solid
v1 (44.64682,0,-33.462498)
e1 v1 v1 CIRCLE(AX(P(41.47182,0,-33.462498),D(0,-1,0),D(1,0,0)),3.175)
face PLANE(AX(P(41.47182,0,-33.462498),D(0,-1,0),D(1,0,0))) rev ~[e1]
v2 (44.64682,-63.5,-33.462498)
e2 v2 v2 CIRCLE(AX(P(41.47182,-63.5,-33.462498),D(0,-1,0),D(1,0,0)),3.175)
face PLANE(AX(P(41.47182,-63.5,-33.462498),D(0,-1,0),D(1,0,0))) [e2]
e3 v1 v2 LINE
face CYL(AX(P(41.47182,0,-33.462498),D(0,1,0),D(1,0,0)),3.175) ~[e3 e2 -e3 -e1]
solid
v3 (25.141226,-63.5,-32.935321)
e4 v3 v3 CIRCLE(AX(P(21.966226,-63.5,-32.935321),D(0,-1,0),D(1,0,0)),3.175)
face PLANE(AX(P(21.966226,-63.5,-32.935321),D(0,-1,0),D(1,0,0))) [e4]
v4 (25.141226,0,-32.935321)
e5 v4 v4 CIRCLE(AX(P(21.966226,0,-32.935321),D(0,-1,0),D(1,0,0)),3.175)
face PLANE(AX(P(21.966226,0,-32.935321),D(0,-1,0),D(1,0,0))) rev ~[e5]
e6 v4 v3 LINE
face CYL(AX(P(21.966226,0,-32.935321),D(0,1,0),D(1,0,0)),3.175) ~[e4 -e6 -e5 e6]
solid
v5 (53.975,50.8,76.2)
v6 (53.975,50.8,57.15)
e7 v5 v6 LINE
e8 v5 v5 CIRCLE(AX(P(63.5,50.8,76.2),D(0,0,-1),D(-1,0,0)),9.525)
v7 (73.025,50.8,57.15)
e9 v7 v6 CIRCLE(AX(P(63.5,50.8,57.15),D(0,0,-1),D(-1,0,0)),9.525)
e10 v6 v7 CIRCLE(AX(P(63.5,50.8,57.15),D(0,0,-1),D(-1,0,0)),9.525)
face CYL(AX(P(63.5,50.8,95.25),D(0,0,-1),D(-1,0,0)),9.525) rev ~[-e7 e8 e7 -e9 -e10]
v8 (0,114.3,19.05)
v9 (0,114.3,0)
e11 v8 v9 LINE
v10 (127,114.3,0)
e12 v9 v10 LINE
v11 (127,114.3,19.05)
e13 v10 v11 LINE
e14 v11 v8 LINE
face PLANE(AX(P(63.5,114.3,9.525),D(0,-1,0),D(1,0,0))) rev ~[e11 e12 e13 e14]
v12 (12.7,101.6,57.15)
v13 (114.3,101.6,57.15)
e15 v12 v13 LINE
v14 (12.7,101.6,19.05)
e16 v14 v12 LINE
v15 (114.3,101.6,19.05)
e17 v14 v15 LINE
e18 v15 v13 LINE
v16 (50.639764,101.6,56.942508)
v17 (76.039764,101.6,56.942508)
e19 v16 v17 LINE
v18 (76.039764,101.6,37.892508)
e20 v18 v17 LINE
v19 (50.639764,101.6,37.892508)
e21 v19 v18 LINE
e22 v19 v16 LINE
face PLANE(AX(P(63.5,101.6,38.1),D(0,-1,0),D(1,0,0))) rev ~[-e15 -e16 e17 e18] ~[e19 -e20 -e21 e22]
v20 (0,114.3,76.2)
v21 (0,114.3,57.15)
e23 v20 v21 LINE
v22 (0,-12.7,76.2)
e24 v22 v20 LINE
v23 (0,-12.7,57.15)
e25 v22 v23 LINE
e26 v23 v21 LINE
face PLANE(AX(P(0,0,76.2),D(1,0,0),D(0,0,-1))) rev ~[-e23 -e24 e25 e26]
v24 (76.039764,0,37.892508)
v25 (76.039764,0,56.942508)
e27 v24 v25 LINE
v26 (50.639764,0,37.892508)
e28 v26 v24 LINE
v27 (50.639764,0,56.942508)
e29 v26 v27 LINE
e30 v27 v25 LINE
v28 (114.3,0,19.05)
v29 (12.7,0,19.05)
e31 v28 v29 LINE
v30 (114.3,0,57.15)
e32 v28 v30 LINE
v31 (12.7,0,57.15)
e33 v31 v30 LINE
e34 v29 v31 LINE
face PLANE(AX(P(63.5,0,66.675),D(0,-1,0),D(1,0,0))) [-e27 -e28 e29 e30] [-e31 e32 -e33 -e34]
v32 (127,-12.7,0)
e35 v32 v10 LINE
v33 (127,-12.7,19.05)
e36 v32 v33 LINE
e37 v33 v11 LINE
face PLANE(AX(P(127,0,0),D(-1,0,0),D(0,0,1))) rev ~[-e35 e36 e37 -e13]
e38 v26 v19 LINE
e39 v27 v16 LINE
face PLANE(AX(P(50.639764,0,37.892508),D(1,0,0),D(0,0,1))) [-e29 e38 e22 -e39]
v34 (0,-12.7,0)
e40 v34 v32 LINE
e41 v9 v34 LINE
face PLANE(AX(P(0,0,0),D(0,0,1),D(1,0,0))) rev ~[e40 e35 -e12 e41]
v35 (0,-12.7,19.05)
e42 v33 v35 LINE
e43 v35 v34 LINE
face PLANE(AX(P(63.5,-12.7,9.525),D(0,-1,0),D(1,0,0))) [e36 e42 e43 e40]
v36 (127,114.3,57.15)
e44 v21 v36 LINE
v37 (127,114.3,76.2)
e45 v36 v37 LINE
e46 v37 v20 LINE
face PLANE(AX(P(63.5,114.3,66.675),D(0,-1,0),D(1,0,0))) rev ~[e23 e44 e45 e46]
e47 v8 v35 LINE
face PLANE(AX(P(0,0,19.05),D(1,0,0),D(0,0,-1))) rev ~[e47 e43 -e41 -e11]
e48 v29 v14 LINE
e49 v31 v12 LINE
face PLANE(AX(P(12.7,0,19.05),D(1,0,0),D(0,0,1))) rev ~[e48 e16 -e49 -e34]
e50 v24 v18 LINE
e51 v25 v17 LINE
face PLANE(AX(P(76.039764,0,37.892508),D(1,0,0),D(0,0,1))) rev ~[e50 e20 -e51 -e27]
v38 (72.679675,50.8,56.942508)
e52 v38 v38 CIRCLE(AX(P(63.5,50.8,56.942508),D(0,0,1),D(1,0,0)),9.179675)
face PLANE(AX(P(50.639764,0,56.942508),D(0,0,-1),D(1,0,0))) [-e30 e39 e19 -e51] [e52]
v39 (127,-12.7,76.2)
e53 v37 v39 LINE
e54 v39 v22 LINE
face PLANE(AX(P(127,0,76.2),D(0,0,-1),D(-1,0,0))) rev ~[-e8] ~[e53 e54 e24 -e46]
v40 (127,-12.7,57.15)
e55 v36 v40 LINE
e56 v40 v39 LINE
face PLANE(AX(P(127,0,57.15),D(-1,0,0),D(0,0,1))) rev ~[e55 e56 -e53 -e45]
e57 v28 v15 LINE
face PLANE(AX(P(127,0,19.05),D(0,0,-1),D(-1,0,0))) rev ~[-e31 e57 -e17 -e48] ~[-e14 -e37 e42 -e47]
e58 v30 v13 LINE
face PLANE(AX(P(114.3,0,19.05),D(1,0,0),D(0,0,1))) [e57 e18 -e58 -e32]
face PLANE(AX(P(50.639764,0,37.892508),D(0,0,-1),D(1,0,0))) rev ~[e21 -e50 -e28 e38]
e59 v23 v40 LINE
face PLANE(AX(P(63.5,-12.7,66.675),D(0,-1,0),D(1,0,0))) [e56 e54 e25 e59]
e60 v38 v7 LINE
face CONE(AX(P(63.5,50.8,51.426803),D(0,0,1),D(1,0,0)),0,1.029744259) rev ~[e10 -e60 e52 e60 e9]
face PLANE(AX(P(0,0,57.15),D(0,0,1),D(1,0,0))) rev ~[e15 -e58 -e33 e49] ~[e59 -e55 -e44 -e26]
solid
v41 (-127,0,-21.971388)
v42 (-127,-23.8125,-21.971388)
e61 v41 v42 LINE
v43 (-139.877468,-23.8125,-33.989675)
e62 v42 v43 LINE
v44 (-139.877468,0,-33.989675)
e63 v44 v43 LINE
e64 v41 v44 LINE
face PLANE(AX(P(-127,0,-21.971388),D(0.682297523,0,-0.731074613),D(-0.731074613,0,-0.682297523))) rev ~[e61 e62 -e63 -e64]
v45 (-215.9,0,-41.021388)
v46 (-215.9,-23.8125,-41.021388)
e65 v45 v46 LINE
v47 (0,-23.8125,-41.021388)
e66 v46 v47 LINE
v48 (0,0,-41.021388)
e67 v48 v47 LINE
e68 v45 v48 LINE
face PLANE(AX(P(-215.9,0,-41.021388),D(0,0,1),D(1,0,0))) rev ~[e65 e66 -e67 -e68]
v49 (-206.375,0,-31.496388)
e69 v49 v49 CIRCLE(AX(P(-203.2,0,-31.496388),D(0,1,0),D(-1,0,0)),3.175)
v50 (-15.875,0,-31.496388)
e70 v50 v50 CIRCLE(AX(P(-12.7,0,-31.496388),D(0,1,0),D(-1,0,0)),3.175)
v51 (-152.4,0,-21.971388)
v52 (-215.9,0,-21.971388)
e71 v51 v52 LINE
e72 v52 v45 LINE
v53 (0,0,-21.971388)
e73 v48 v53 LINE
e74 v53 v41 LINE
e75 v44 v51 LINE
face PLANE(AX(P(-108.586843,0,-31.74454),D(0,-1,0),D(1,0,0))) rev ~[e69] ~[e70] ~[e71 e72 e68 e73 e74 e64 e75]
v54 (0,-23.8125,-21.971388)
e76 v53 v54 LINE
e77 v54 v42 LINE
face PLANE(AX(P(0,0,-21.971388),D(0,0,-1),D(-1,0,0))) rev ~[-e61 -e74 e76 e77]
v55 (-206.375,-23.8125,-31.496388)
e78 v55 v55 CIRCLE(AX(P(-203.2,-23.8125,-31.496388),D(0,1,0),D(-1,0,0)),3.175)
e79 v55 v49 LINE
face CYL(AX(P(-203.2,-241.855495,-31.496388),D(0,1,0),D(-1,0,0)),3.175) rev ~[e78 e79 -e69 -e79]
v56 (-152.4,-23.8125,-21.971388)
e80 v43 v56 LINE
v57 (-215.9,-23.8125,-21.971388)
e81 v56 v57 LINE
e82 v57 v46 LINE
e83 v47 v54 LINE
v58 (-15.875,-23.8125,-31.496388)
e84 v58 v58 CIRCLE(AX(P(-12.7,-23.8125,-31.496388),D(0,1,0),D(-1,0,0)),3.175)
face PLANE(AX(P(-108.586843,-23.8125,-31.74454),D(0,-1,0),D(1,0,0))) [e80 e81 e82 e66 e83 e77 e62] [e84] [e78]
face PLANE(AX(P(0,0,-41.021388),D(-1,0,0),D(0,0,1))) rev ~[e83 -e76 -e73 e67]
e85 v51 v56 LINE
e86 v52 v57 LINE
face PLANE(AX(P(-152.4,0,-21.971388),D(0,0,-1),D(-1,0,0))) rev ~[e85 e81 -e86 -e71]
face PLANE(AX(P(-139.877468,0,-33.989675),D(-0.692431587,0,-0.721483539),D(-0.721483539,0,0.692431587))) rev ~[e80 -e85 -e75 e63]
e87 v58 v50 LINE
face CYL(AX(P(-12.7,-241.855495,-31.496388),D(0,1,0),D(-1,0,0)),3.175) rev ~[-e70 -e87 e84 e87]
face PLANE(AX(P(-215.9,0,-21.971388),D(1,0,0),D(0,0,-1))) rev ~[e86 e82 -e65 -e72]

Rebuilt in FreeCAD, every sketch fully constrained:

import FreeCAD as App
import Part
import Sketcher
Q = App.Units.Quantity


def add_polygon(sketch, points):
    """Adds a closed chain of lines whose ends are joined by coincident constraints."""
    first, n = sketch.GeometryCount, len(points)
    for a, b in zip(points, points[1:] + points[:1]):
        sketch.addGeometry(Part.LineSegment(App.Vector(*a, 0), App.Vector(*b, 0)), False)
    for i in range(n):
        sketch.addConstraint(Sketcher.Constraint("Coincident", first + i, 2, first + (i + 1) % n, 1))

doc = App.newDocument("Part")
params = doc.addObject("Spreadsheet::Sheet", "Params")
for row, (alias, value) in enumerate([
    ("sketch1_width", "4 in"),
    ("sketch1_height", "1.5 in"),
    ("pad1_length", "4 in"),
    ("sketch2_width", "5 in"),
    ("sketch2_height", "0.75 in"),
    ("pad2_length", "4.5 in"),
    ("pad2_length2", "0.5 in"),
    ("sketch3_width", "1 in"),
    ("sketch3_height", "0.75 in"),
    ("pocket1_length", "5 in"),
    ("sketch4_diameter", "0.75 in"),
    ("hole_diameter", "0.75 in"),
    ("hole_depth", "0.75 in"),
    ("sketch5_width", "5 in"),
    ("sketch5_width2", "2.5 in"),
    ("sketch5_width3", "8.5 in"),
    ("sketch5_height", "0.75 in"),
    ("pad3_length", "0.9375 in"),
    ("sketch6_diameter", "0.25 in"),
    ("hole2_diameter", "0.25 in"),
    ("sketch7_diameter", "0.25 in"),
    ("pad4_length", "2.5 in"),
    ("sketch8_diameter", "0.25 in"),
    ("pad5_length", "2.5 in"),
], start=1):
    params.set(f"A{row}", alias)
    params.set(f"B{row}", "=" + value)
    params.setAlias(f"B{row}", alias)

body = doc.addObject("PartDesign::Body", "Body")

sketch1 = doc.addObject("Sketcher::SketchObject", "Sketch")
body.addObject(sketch1)
sketch1.AttachmentSupport = (doc.XZ_Plane, [""])
sketch1.MapMode = "FlatFace"
add_polygon(sketch1, [(13, 57), (13, 19), (114, 19), (114, 57)])
sketch1.addConstraint([
    Sketcher.Constraint("Vertical", 0),
    Sketcher.Constraint("Horizontal", 1),
    Sketcher.Constraint("Vertical", 2),
    Sketcher.Constraint("Horizontal", 3),
    Sketcher.Constraint("DistanceX", 1, 1, 1, 2, Q("4 in")),
    Sketcher.Constraint("DistanceY", 0, 2, 0, 1, Q("1.5 in")),
    Sketcher.Constraint("DistanceX", -1, 1, 0, 2, Q("0.5 in")),
    Sketcher.Constraint("DistanceY", -1, 1, 0, 2, Q("0.75 in")),
])
sketch1.setExpression("Constraints[8]", "Params.sketch1_width")
sketch1.setExpression("Constraints[9]", "Params.sketch1_height")
pad1 = doc.addObject("PartDesign::Pad", "Pad")
body.addObject(pad1)
pad1.Profile = sketch1
pad1.setExpression("Length", "Params.pad1_length")
pad1.Reversed = True

sketch2 = doc.addObject("Sketcher::SketchObject", "Sketch001")
body.addObject(sketch2)
sketch2.AttachmentSupport = (doc.XZ_Plane, [""])
sketch2.MapMode = "FlatFace"
add_polygon(sketch2, [(0, 57), (127, 57), (127, 76), (0, 76)])
add_polygon(sketch2, [(0, 19), (0, 0), (127, 0), (127, 19)])
sketch2.addConstraint([
    Sketcher.Constraint("Horizontal", 0),
    Sketcher.Constraint("Vertical", 1),
    Sketcher.Constraint("Horizontal", 2),
    Sketcher.Constraint("Vertical", 3),
    Sketcher.Constraint("Vertical", 4),
    Sketcher.Constraint("Horizontal", 5),
    Sketcher.Constraint("Vertical", 6),
    Sketcher.Constraint("Horizontal", 7),
    Sketcher.Constraint("Coincident", 4, 2, -1, 1),
    Sketcher.Constraint("PointOnObject", 2, 2, -2),
    Sketcher.Constraint("Vertical", 1, 2, 5, 2),
    Sketcher.Constraint("Equal", 3, 4),
    Sketcher.Constraint("DistanceX", 0, 1, 0, 2, Q("5 in")),
    Sketcher.Constraint("DistanceY", -1, 1, 1, 2, Q("3 in")),
    Sketcher.Constraint("DistanceY", 1, 1, 1, 2, Q("0.75 in")),
])
sketch2.setExpression("Constraints[20]", "Params.sketch2_width")
sketch2.setExpression("Constraints[22]", "Params.sketch2_height")
pad2 = doc.addObject("PartDesign::Pad", "Pad001")
body.addObject(pad2)
pad2.Profile = sketch2
pad2.Type = "TwoLengths"
pad2.setExpression("Length", "Params.pad2_length")
pad2.setExpression("Length2", "Params.pad2_length2")
pad2.Reversed = True

sketch3 = doc.addObject("Sketcher::SketchObject", "Sketch002")
body.addObject(sketch3)
sketch3.AttachmentSupport = (doc.XZ_Plane, [""])
sketch3.MapMode = "FlatFace"
add_polygon(sketch3, [(51, 57), (51, 38), (76, 38), (76, 57)])
sketch3.addConstraint([
    Sketcher.Constraint("Vertical", 0),
    Sketcher.Constraint("Horizontal", 1),
    Sketcher.Constraint("Vertical", 2),
    Sketcher.Constraint("Horizontal", 3),
    Sketcher.Constraint("DistanceX", 1, 1, 1, 2, Q("1 in")),
    Sketcher.Constraint("DistanceY", 0, 2, 0, 1, Q("0.75 in")),
    Sketcher.Constraint("DistanceX", -1, 1, 0, 2, 50.639764),
    Sketcher.Constraint("DistanceY", -1, 1, 0, 2, 37.892508),
])
sketch3.setExpression("Constraints[8]", "Params.sketch3_width")
sketch3.setExpression("Constraints[9]", "Params.sketch3_height")
pocket1 = doc.addObject("PartDesign::Pocket", "Pocket")
body.addObject(pocket1)
pocket1.Profile = sketch3
pocket1.setExpression("Length", "Params.pocket1_length")

sketch4 = doc.addObject("Sketcher::SketchObject", "Sketch003")
body.addObject(sketch4)
sketch4.AttachmentSupport = (doc.XY_Plane, [""])
sketch4.MapMode = "FlatFace"
sketch4.AttachmentOffset = App.Placement(App.Vector(0, 0, 3 * 25.4), App.Rotation())
sketch4.addGeometry(Part.Circle(App.Vector(64, 51, 0), App.Vector(0, 0, 1), 10), False)
sketch4.addConstraint([
    Sketcher.Constraint("Diameter", 0, Q("0.75 in")),
    Sketcher.Constraint("DistanceY", -1, 1, 0, 3, Q("2 in")),
    Sketcher.Constraint("DistanceX", -1, 1, 0, 3, Q("2.5 in")),
])
sketch4.setExpression("Constraints[0]", "Params.sketch4_diameter")
doc.recompute()
hole = doc.addObject("PartDesign::Hole", "Hole")
body.addObject(hole)
hole.Profile = sketch4
hole.ThreadType = "None"
hole.setExpression("Diameter", "Params.hole_diameter")
hole.DepthType = "Dimension"
hole.setExpression("Depth", "Params.hole_depth")
hole.DrillPoint = "Angled"
hole.DrillPointAngle = 118
body2 = doc.addObject("PartDesign::Body", "Body001")

sketch5 = doc.addObject("Sketcher::SketchObject", "Sketch004")
body2.addObject(sketch5)
sketch5.AttachmentSupport = (doc.getObject("XZ_Plane001"), [""])
sketch5.MapMode = "FlatFace"
add_polygon(sketch5, [(0, -41), (0, -22), (-127, -22), (-140, -34), (-152, -22), (-216, -22), (-216, -41)])
sketch5.addConstraint([
    Sketcher.Constraint("Vertical", 0),
    Sketcher.Constraint("Horizontal", 1),
    Sketcher.Constraint("Horizontal", 4),
    Sketcher.Constraint("Vertical", 5),
    Sketcher.Constraint("Horizontal", 6),
    Sketcher.Constraint("PointOnObject", 0, 2, -2),
    Sketcher.Constraint("Horizontal", 1, 2, 3, 2),
    Sketcher.Constraint("DistanceX", 1, 2, 1, 1, Q("5 in")),
    Sketcher.Constraint("DistanceX", 4, 2, 4, 1, Q("2.5 in")),
    Sketcher.Constraint("DistanceX", 6, 1, 6, 2, Q("8.5 in")),
    Sketcher.Constraint("DistanceY", 0, 1, 0, 2, Q("0.75 in")),
    Sketcher.Constraint("DistanceY", 0, 2, -1, 1, 21.971388),
    Sketcher.Constraint("DistanceX", 2, 2, -1, 1, 139.877468),
    Sketcher.Constraint("Distance", 2, 17.614438),
])
sketch5.setExpression("Constraints[14]", "Params.sketch5_width")
sketch5.setExpression("Constraints[15]", "Params.sketch5_width2")
sketch5.setExpression("Constraints[16]", "Params.sketch5_width3")
sketch5.setExpression("Constraints[17]", "Params.sketch5_height")
pad3 = doc.addObject("PartDesign::Pad", "Pad002")
body2.addObject(pad3)
pad3.Profile = sketch5
pad3.setExpression("Length", "Params.pad3_length")

sketch6 = doc.addObject("Sketcher::SketchObject", "Sketch005")
body2.addObject(sketch6)
sketch6.AttachmentSupport = (doc.getObject("XZ_Plane001"), [""])
sketch6.MapMode = "FlatFace"
sketch6.AttachmentOffset = App.Placement(App.Vector(0, 0, 0.9375 * 25.4), App.Rotation())
sketch6.addGeometry([
    Part.Circle(App.Vector(-203.2, -31.5, 0), App.Vector(0, 0, 1), 3.2),
    Part.Circle(App.Vector(-12.7, -31.5, 0), App.Vector(0, 0, 1), 3.2),
], False)
sketch6.addConstraint([
    Sketcher.Constraint("Equal", 0, 1),
    Sketcher.Constraint("Horizontal", 0, 3, 1, 3),
    Sketcher.Constraint("Diameter", 0, Q("0.25 in")),
    Sketcher.Constraint("DistanceX", 0, 3, -1, 1, Q("8 in")),
    Sketcher.Constraint("DistanceX", 1, 3, -1, 1, Q("0.5 in")),
    Sketcher.Constraint("DistanceY", 0, 3, -1, 1, 31.496388),
])
sketch6.setExpression("Constraints[2]", "Params.sketch6_diameter")
doc.recompute()
hole2 = doc.addObject("PartDesign::Hole", "Hole001")
body2.addObject(hole2)
hole2.Profile = sketch6
hole2.ThreadType = "None"
hole2.setExpression("Diameter", "Params.hole2_diameter")
hole2.DepthType = "ThroughAll"
body3 = doc.addObject("PartDesign::Body", "Body002")

sketch7 = doc.addObject("Sketcher::SketchObject", "Sketch006")
body3.addObject(sketch7)
sketch7.AttachmentSupport = (doc.getObject("XZ_Plane002"), [""])
sketch7.MapMode = "FlatFace"
sketch7.addGeometry(Part.Circle(App.Vector(22, -32.9, 0), App.Vector(0, 0, 1), 3.2), False)
sketch7.addConstraint([
    Sketcher.Constraint("Diameter", 0, Q("0.25 in")),
    Sketcher.Constraint("DistanceY", 0, 3, -1, 1, 32.935321),
    Sketcher.Constraint("DistanceX", -1, 1, 0, 3, 21.966226),
])
sketch7.setExpression("Constraints[0]", "Params.sketch7_diameter")
pad4 = doc.addObject("PartDesign::Pad", "Pad003")
body3.addObject(pad4)
pad4.Profile = sketch7
pad4.setExpression("Length", "Params.pad4_length")
body4 = doc.addObject("PartDesign::Body", "Body003")

sketch8 = doc.addObject("Sketcher::SketchObject", "Sketch007")
body4.addObject(sketch8)
sketch8.AttachmentSupport = (doc.getObject("XZ_Plane003"), [""])
sketch8.MapMode = "FlatFace"
sketch8.addGeometry(Part.Circle(App.Vector(41.5, -33.5, 0), App.Vector(0, 0, 1), 3.2), False)
sketch8.addConstraint([
    Sketcher.Constraint("Diameter", 0, Q("0.25 in")),
    Sketcher.Constraint("DistanceY", 0, 3, -1, 1, 33.462498),
    Sketcher.Constraint("DistanceX", -1, 1, 0, 3, 41.47182),
])
sketch8.setExpression("Constraints[0]", "Params.sketch8_diameter")
pad5 = doc.addObject("PartDesign::Pad", "Pad004")
body4.addObject(pad5)
pad5.Profile = sketch8
pad5.setExpression("Length", "Params.pad5_length")

doc.recompute()
